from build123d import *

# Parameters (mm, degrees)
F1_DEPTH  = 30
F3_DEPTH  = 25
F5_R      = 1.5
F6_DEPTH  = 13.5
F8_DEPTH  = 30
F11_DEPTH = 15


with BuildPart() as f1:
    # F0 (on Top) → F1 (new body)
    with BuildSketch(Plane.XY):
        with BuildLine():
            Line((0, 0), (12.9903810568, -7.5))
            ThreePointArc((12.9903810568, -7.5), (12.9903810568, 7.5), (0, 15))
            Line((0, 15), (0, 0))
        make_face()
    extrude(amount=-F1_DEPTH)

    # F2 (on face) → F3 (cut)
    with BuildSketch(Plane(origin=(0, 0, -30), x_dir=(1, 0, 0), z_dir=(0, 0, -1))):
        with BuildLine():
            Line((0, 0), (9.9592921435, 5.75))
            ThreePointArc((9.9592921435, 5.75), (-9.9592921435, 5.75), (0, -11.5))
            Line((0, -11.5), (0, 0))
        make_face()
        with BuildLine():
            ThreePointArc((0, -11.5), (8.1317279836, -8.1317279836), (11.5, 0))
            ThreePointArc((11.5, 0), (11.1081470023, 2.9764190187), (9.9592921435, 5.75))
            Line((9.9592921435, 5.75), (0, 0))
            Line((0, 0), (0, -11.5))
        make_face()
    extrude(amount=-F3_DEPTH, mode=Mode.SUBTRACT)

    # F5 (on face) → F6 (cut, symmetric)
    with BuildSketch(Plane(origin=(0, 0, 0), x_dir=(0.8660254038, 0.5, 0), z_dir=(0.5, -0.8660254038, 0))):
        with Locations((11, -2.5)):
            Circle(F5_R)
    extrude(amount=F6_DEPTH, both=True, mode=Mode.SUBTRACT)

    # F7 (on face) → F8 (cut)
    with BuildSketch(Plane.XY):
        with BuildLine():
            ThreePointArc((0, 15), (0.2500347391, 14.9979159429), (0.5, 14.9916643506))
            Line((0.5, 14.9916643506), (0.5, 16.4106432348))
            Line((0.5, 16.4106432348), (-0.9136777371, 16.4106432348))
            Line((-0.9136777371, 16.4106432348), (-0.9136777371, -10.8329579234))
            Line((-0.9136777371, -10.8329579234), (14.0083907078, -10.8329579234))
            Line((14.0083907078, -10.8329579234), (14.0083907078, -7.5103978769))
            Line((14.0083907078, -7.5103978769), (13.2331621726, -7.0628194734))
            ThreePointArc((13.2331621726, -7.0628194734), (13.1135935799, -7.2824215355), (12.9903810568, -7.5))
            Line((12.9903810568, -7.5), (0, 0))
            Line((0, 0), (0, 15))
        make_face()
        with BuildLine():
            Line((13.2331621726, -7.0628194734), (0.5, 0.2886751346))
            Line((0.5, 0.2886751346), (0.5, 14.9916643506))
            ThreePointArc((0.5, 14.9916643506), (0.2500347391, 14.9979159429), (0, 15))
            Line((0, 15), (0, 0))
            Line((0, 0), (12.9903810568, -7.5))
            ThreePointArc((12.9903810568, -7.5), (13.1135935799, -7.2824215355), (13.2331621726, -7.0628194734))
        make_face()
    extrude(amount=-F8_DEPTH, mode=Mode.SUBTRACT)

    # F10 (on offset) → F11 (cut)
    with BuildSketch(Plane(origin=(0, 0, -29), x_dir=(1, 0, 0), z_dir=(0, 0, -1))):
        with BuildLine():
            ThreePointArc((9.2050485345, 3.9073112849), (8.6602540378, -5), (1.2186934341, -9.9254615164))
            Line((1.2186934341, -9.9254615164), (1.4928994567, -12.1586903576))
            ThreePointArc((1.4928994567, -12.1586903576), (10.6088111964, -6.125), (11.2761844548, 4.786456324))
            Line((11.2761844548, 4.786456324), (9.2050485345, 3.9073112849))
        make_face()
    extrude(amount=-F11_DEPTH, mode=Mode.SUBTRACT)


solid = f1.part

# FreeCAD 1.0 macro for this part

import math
import FreeCAD as App
import Part
import Sketcher
Q = App.Units.Quantity

doc = App.newDocument("Part")
body = doc.addObject("PartDesign::Body", "Body")

sketch1 = body.newObject("Sketcher::SketchObject", "Sketch")
sketch1.AttachmentSupport = (doc.getObject("XY_Plane"), [""])
sketch1.MapMode = "FlatFace"
sketch1.addGeometry([
    Part.LineSegment(App.Vector(0, 0, 0), App.Vector(12.990381, -7.5, 0)),
    Part.ArcOfCircle(Part.Circle(App.Vector(0, 0, 0), App.Vector(0, 0, 1), 15), math.radians(-30), math.radians(90)),
    Part.LineSegment(App.Vector(0, 15, 0), App.Vector(0, 0, 0)),
], False)
sketch1.addConstraint([
    Sketcher.Constraint("Coincident", 0, 2, 1, 1),
    Sketcher.Constraint("Coincident", 1, 2, 2, 1),
    Sketcher.Constraint("Coincident", 2, 2, 0, 1),
    Sketcher.Constraint("Vertical", 2),
    Sketcher.Constraint("Coincident", 1, 3, -1, 1),
    Sketcher.Constraint("Coincident", 2, 2, -1, 1),
    Sketcher.Constraint("Radius", 1, 15.0),
    Sketcher.Constraint("Angle", 0, Q("-30 deg")),
])
pad1 = body.newObject("PartDesign::Pad", "Pad")
pad1.Profile = sketch1
pad1.Length = 30
pad1.Reversed = True

sketch2 = body.newObject("Sketcher::SketchObject", "Sketch001")
sketch2.AttachmentSupport = (doc.getObject("XY_Plane"), [""])
sketch2.MapMode = "FlatFace"
sketch2.AttachmentOffset = App.Placement(App.Vector(0, 0, -30), App.Rotation())
sketch2.addGeometry([
    Part.ArcOfCircle(Part.Circle(App.Vector(0, 0, 0), App.Vector(0, 0, 1), 11.5), math.radians(90), math.radians(330)),
    Part.ArcOfCircle(Part.Circle(App.Vector(0, 0, 0), App.Vector(0, 0, 1), 11.5), math.radians(0), math.radians(90)),
    Part.ArcOfCircle(Part.Circle(App.Vector(0, 0, 0), App.Vector(0, 0, 1), 11.5), math.radians(-30), math.radians(0)),
], False)
sketch2.addConstraint([
    Sketcher.Constraint("Tangent", 0, 1, 1, 2),
    Sketcher.Constraint("Tangent", 1, 1, 2, 2),
    Sketcher.Constraint("Tangent", 2, 1, 0, 2),
    Sketcher.Constraint("Coincident", 0, 3, -1, 1),
    Sketcher.Constraint("PointOnObject", 0, 1, -2),
    Sketcher.Constraint("PointOnObject", 1, 1, -1),
    Sketcher.Constraint("Radius", 0, 11.5),
    Sketcher.Constraint("DistanceY", 2, 1, -1, 1, 5.75),
])
pocket1 = body.newObject("PartDesign::Pocket", "Pocket")
pocket1.Profile = sketch2
pocket1.Length = 25
pocket1.Reversed = True

sketch3 = body.newObject("Sketcher::SketchObject", "Sketch002")
sketch3.Placement = App.Placement(App.Vector(0, 0, 0), App.Rotation(App.Vector(0.866025404, 0.5, 0), App.Vector(0, 0, 1), App.Vector(0.5, -0.866025404, 0), "ZXY"))
sketch3.addGeometry(Part.Circle(App.Vector(11, -2.5, 0), App.Vector(0, 0, 1), 1.5), False)
sketch3.addConstraint([
    Sketcher.Constraint("Diameter", 0, 3.0),
    Sketcher.Constraint("DistanceX", -1, 1, 0, 3, 11.0),
    Sketcher.Constraint("DistanceY", 0, 3, -1, 1, 2.5),
])
pocket2 = body.newObject("PartDesign::Pocket", "Pocket001")
pocket2.Profile = sketch3
pocket2.Length = 27
pocket2.Midplane = True

sketch4 = body.newObject("Sketcher::SketchObject", "Sketch003")
sketch4.AttachmentSupport = (doc.getObject("XY_Plane"), [""])
sketch4.MapMode = "FlatFace"
sketch4.addGeometry([
    Part.LineSegment(App.Vector(0.5, 16.410643, 0), App.Vector(-0.913678, 16.410643, 0)),
    Part.LineSegment(App.Vector(-0.913678, 16.410643, 0), App.Vector(-0.913678, -10.832958, 0)),
    Part.LineSegment(App.Vector(-0.913678, -10.832958, 0), App.Vector(14.008391, -10.832958, 0)),
    Part.LineSegment(App.Vector(14.008391, -10.832958, 0), App.Vector(14.008391, -7.510398, 0)),
    Part.LineSegment(App.Vector(14.008391, -7.510398, 0), App.Vector(13.233162, -7.062819, 0)),
    Part.LineSegment(App.Vector(13.233162, -7.062819, 0), App.Vector(0.5, 0.288675, 0)),
    Part.LineSegment(App.Vector(0.5, 0.288675, 0), App.Vector(0.5, 16.410643, 0)),
], False)
sketch4.addConstraint([
    Sketcher.Constraint("Coincident", 0, 2, 1, 1),
    Sketcher.Constraint("Coincident", 1, 2, 2, 1),
    Sketcher.Constraint("Coincident", 2, 2, 3, 1),
    Sketcher.Constraint("Coincident", 3, 2, 4, 1),
    Sketcher.Constraint("Coincident", 4, 2, 5, 1),
    Sketcher.Constraint("Coincident", 5, 2, 6, 1),
    Sketcher.Constraint("Coincident", 6, 2, 0, 1),
    Sketcher.Constraint("Horizontal", 0),
    Sketcher.Constraint("Vertical", 1),
    Sketcher.Constraint("Horizontal", 2),
    Sketcher.Constraint("Vertical", 3),
    Sketcher.Constraint("Vertical", 6),
    Sketcher.Constraint("Parallel", 4, 5),
    Sketcher.Constraint("Angle", 4, Q("150 deg")),
    Sketcher.Constraint("DistanceX", -1, 1, 5, 2, 0.5),
    Sketcher.Constraint("DistanceY", 1, 2, 1, 1, 27.243601),
    Sketcher.Constraint("DistanceX", 2, 1, 2, 2, 14.922068),
    Sketcher.Constraint("DistanceY", 3, 1, 3, 2, 3.32256),
    Sketcher.Constraint("DistanceY", 6, 1, 6, 2, 16.121968),
    Sketcher.Constraint("Distance", 5, 14.702989),
    Sketcher.Constraint("DistanceY", 4, 2, -1, 1, 7.062819),
])
pocket3 = body.newObject("PartDesign::Pocket", "Pocket002")
pocket3.Profile = sketch4
pocket3.Length = 30

sketch5 = body.newObject("Sketcher::SketchObject", "Sketch004")
sketch5.AttachmentSupport = (doc.getObject("XY_Plane"), [""])
sketch5.MapMode = "FlatFace"
sketch5.AttachmentOffset = App.Placement(App.Vector(0, 0, -29), App.Rotation())
sketch5.addGeometry([
    Part.ArcOfCircle(Part.Circle(App.Vector(0, 0, 0), App.Vector(0, 0, 1), 10), math.radians(-23), math.radians(83)),
    Part.LineSegment(App.Vector(1.218693, 9.925462, 0), App.Vector(1.492899, 12.15869, 0)),
    Part.ArcOfCircle(Part.Circle(App.Vector(0, 0, 0), App.Vector(0, 0, 1), 12.25), math.radians(-23), math.radians(83)),
    Part.LineSegment(App.Vector(11.276184, -4.786456, 0), App.Vector(9.205049, -3.907311, 0)),
], False)
sketch5.addConstraint([
    Sketcher.Constraint("Coincident", 0, 2, 1, 1),
    Sketcher.Constraint("Coincident", 1, 2, 2, 2),
    Sketcher.Constraint("Coincident", 2, 1, 3, 1),
    Sketcher.Constraint("Coincident", 3, 2, 0, 1),
    Sketcher.Constraint("Coincident", 0, 3, -1, 1),
    Sketcher.Constraint("Coincident", 2, 3, -1, 1),
    Sketcher.Constraint("Radius", 0, 10.0),
    Sketcher.Constraint("Angle", 1, Q("83 deg")),
    Sketcher.Constraint("Angle", 3, Q("157 deg")),
    Sketcher.Constraint("Radius", 2, 12.25),
    Sketcher.Constraint("DistanceY", 3, 2, 1, 2, 16.066002),
    Sketcher.Constraint("DistanceX", -1, 1, 1, 2, 1.492899),
])
pocket4 = body.newObject("PartDesign::Pocket", "Pocket003")
pocket4.Profile = sketch5
pocket4.Length = 15
pocket4.Reversed = True

doc.recompute()
